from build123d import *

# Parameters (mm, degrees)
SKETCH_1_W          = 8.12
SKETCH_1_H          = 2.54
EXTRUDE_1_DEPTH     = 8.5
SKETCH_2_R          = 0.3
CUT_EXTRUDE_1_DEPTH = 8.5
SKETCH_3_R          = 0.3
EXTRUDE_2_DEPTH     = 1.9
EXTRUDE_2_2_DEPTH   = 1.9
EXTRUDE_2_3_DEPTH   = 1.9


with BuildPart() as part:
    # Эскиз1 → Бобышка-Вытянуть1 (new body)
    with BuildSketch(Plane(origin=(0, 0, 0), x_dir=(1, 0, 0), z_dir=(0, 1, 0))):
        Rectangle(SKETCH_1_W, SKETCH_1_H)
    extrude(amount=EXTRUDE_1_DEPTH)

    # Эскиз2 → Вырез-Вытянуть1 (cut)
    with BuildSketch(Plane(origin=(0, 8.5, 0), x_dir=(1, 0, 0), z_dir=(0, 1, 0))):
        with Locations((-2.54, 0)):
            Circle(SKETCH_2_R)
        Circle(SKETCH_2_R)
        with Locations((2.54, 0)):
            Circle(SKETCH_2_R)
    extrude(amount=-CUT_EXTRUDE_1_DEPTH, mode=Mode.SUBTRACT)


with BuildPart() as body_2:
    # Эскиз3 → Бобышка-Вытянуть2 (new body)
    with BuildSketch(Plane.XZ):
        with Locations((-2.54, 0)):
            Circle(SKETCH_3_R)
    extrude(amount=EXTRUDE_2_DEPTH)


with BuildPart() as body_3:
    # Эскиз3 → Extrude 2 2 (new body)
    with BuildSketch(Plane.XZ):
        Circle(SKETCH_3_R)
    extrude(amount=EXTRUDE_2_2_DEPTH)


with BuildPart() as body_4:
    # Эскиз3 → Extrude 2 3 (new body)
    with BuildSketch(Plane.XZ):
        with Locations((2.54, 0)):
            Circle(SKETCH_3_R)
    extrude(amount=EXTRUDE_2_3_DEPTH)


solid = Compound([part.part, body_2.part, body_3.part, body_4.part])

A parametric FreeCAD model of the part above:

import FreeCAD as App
import Part
import Sketcher
Q = App.Units.Quantity


def add_polygon(sketch, points):
    """Adds a closed chain of lines whose ends are joined by coincident constraints."""
    first, n = sketch.GeometryCount, len(points)
    for a, b in zip(points, points[1:] + points[:1]):
        sketch.addGeometry(Part.LineSegment(App.Vector(*a, 0), App.Vector(*b, 0)), False)
    for i in range(n):
        sketch.addConstraint(Sketcher.Constraint("Coincident", first + i, 2, first + (i + 1) % n, 1))

doc = App.newDocument("Part")
body = doc.addObject("PartDesign::Body", "Body")

# Sketch on XZ plane
sketch1 = body.newObject("Sketcher::SketchObject", "Sketch")
sketch1.AttachmentSupport = (doc.getObject("XZ_Plane"), [""])
sketch1.MapMode = "FlatFace"
add_polygon(sketch1, [(-4.1, -1.3), (-4.1, 1.3), (4.1, 1.3), (4.1, -1.3)])  # lines 0-3
sketch1.addConstraint([
    Sketcher.Constraint("Vertical", 0),
    Sketcher.Constraint("Horizontal", 1),
    Sketcher.Constraint("Vertical", 2),
    Sketcher.Constraint("Horizontal", 3),
    Sketcher.Constraint("Symmetric", 0, 2, 2, 2, -1, 1),
    Sketcher.Constraint("DistanceX", 1, 1, 1, 2, Q("8.12 mm")),
    Sketcher.Constraint("DistanceY", 0, 1, 0, 2, Q("2.54 mm")),
])
pad1 = body.newObject("PartDesign::Pad", "Pad")
pad1.Profile = sketch1
pad1.Length = 8.5
pad1.Reversed = True

# Sketch on XZ plane
sketch2 = body.newObject("Sketcher::SketchObject", "Sketch001")
sketch2.AttachmentSupport = (doc.getObject("XZ_Plane"), [""])
sketch2.MapMode = "FlatFace"
sketch2.AttachmentOffset = App.Placement(App.Vector(0, 0, -8.5), App.Rotation())
sketch2.addGeometry([
    Part.Circle(App.Vector(-2.54, 0, 0), App.Vector(0, 0, 1), 0.3),
    Part.Circle(App.Vector(0, 0, 0), App.Vector(0, 0, 1), 0.3),
    Part.Circle(App.Vector(2.54, 0, 0), App.Vector(0, 0, 1), 0.3),
], False)
sketch2.addConstraint([
    Sketcher.Constraint("Coincident", 1, 3, -1, 1),
    Sketcher.Constraint("Equal", 0, 1),
    Sketcher.Constraint("Equal", 1, 2),
    Sketcher.Constraint("Symmetric", 0, 3, 2, 3, -1, 1),
    Sketcher.Constraint("PointOnObject", 0, 3, -1),
    Sketcher.Constraint("Diameter", 0, Q("0.6 mm")),
    Sketcher.Constraint("DistanceX", 0, 3, -1, 1, Q("2.54 mm")),
])
pocket1 = body.newObject("PartDesign::Pocket", "Pocket")
pocket1.Profile = sketch2
pocket1.Length = 8.5
pocket1.Reversed = True
body2 = doc.addObject("PartDesign::Body", "Body001")

# Sketch on XZ plane
sketch3 = body2.newObject("Sketcher::SketchObject", "Sketch002")
sketch3.AttachmentSupport = (doc.getObject("XZ_Plane001"), [""])
sketch3.MapMode = "FlatFace"
sketch3.addGeometry(Part.Circle(App.Vector(-2.54, 0, 0), App.Vector(0, 0, 1), 0.3), False)
sketch3.addConstraint([
    Sketcher.Constraint("PointOnObject", 0, 3, -1),
    Sketcher.Constraint("Diameter", 0, Q("0.6 mm")),
    Sketcher.Constraint("DistanceX", 0, 3, -1, 1, Q("2.54 mm")),
])
pad2 = body2.newObject("PartDesign::Pad", "Pad001")
pad2.Profile = sketch3
pad2.Length = 1.9
body3 = doc.addObject("PartDesign::Body", "Body002")

# Sketch on XZ plane
sketch4 = body3.newObject("Sketcher::SketchObject", "Sketch003")
sketch4.AttachmentSupport = (doc.getObject("XZ_Plane002"), [""])
sketch4.MapMode = "FlatFace"
sketch4.addGeometry(Part.Circle(App.Vector(0, 0, 0), App.Vector(0, 0, 1), 0.3), False)
sketch4.addConstraint([
    Sketcher.Constraint("Coincident", 0, 3, -1, 1),
    Sketcher.Constraint("Diameter", 0, Q("0.6 mm")),
])
pad3 = body3.newObject("PartDesign::Pad", "Pad002")
pad3.Profile = sketch4
pad3.Length = 1.9
body4 = doc.addObject("PartDesign::Body", "Body003")

# Sketch on XZ plane
sketch5 = body4.newObject("Sketcher::SketchObject", "Sketch004")
sketch5.AttachmentSupport = (doc.getObject("XZ_Plane003"), [""])
sketch5.MapMode = "FlatFace"
sketch5.addGeometry(Part.Circle(App.Vector(2.54, 0, 0), App.Vector(0, 0, 1), 0.3), False)
sketch5.addConstraint([
    Sketcher.Constraint("PointOnObject", 0, 3, -1),
    Sketcher.Constraint("Diameter", 0, Q("0.6 mm")),
    Sketcher.Constraint("DistanceX", -1, 1, 0, 3, Q("2.54 mm")),
])
pad4 = body4.newObject("PartDesign::Pad", "Pad003")
pad4.Profile = sketch5
pad4.Length = 1.9

doc.recompute()
